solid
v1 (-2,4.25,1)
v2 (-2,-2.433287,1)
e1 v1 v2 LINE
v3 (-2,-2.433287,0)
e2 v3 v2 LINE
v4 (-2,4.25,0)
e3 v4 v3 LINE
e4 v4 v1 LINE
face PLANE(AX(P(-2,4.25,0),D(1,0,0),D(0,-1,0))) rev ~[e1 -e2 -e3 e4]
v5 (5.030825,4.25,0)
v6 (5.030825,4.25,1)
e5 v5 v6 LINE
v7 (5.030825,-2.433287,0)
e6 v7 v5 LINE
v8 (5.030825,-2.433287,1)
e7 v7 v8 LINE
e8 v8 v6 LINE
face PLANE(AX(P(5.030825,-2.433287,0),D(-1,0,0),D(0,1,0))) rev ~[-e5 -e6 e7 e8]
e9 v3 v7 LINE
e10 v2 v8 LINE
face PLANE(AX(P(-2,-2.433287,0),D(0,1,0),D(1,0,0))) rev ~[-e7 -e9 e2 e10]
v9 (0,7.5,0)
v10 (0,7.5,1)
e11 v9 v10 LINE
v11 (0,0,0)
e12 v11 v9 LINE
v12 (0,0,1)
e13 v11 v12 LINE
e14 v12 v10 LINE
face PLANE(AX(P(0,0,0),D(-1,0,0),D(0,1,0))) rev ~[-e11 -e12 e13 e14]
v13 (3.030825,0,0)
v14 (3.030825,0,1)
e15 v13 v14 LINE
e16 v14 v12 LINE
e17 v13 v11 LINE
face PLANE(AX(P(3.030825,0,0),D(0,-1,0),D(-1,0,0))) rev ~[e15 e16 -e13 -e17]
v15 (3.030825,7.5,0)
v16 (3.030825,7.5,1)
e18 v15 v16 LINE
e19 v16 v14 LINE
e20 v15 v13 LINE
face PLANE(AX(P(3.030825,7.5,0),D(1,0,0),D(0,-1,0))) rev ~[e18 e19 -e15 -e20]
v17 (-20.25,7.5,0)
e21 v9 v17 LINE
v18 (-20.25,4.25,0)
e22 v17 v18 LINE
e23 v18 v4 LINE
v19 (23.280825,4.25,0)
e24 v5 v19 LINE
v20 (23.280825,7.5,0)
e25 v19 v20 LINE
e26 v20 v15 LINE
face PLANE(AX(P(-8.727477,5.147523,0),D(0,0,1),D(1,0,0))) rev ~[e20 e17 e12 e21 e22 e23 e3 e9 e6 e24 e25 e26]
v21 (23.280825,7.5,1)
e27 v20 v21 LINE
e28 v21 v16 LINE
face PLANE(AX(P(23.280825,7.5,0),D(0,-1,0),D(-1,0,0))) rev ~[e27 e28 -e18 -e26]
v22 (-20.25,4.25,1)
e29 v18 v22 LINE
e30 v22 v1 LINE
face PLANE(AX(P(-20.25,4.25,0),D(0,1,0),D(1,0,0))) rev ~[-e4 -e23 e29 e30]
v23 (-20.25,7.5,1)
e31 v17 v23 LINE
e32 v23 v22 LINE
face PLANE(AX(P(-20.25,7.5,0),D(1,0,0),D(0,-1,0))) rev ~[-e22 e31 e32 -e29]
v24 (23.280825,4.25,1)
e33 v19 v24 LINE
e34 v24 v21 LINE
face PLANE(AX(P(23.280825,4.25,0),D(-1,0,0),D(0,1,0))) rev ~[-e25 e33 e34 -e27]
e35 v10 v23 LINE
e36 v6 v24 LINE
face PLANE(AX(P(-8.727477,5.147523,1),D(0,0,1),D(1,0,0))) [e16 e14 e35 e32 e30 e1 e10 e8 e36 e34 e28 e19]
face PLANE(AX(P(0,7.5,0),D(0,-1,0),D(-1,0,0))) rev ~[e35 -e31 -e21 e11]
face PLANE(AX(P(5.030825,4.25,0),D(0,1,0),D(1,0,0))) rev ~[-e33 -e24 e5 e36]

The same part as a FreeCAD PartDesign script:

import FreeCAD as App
import Part
import Sketcher
Q = App.Units.Quantity

doc = App.newDocument("Part")
params = doc.addObject("Spreadsheet::Sheet", "Params")
for row, (alias, value) in enumerate([
    ("sketch1_height", "7.5 mm"),
    ("sketch1_width", "20.25 mm"),
    ("sketch1_height2", "3.25 mm"),
    ("pad1_length", "1 mm"),
], start=1):
    params.set(f"A{row}", alias)
    params.set(f"B{row}", "=" + value)
    params.setAlias(f"B{row}", alias)

body = doc.addObject("PartDesign::Body", "Body")

# Sketch on XY plane
sketch1 = body.newObject("Sketcher::SketchObject", "Sketch")
sketch1.AttachmentSupport = (doc.getObject("XY_Plane"), [""])
sketch1.MapMode = "FlatFace"
sketch1.addGeometry([
    Part.LineSegment(App.Vector(0, 0, 0), App.Vector(0, 7.5, 0)),  # 0
    Part.LineSegment(App.Vector(0, 7.5, 0), App.Vector(-20.2, 7.5, 0)),  # 1
    Part.LineSegment(App.Vector(-20.2, 7.5, 0), App.Vector(-20.2, 4.2, 0)),  # 2
    Part.LineSegment(App.Vector(-20.2, 4.2, 0), App.Vector(-2, 4.2, 0)),  # 3
    Part.LineSegment(App.Vector(-2, 4.2, 0), App.Vector(-2, -2.4, 0)),  # 4
    Part.LineSegment(App.Vector(-2, -2.4, 0), App.Vector(5, -2.4, 0)),  # 5
    Part.LineSegment(App.Vector(5, -2.4, 0), App.Vector(5, 4.2, 0)),  # 6
    Part.LineSegment(App.Vector(5, 4.2, 0), App.Vector(23.3, 4.2, 0)),  # 7
    Part.LineSegment(App.Vector(23.3, 4.2, 0), App.Vector(23.3, 7.5, 0)),  # 8
    Part.LineSegment(App.Vector(23.3, 7.5, 0), App.Vector(3, 7.5, 0)),  # 9
    Part.LineSegment(App.Vector(3, 7.5, 0), App.Vector(3, 0, 0)),  # 10
    Part.LineSegment(App.Vector(3, 0, 0), App.Vector(0, 0, 0)),  # 11
], False)
sketch1.addConstraint([
    Sketcher.Constraint("Coincident", 0, 2, 1, 1),
    Sketcher.Constraint("Coincident", 1, 2, 2, 1),
    Sketcher.Constraint("Coincident", 2, 2, 3, 1),
    Sketcher.Constraint("Coincident", 3, 2, 4, 1),
    Sketcher.Constraint("Coincident", 4, 2, 5, 1),
    Sketcher.Constraint("Coincident", 5, 2, 6, 1),
    Sketcher.Constraint("Coincident", 6, 2, 7, 1),
    Sketcher.Constraint("Coincident", 7, 2, 8, 1),
    Sketcher.Constraint("Coincident", 8, 2, 9, 1),
    Sketcher.Constraint("Coincident", 9, 2, 10, 1),
    Sketcher.Constraint("Coincident", 10, 2, 11, 1),
    Sketcher.Constraint("Coincident", 11, 2, 0, 1),
    Sketcher.Constraint("Vertical", 0),
    Sketcher.Constraint("Horizontal", 1),
    Sketcher.Constraint("Vertical", 2),
    Sketcher.Constraint("Horizontal", 3),
    Sketcher.Constraint("Vertical", 4),
    Sketcher.Constraint("Horizontal", 5),
    Sketcher.Constraint("Vertical", 6),
    Sketcher.Constraint("Horizontal", 7),
    Sketcher.Constraint("Vertical", 8),
    Sketcher.Constraint("Horizontal", 9),
    Sketcher.Constraint("Vertical", 10),
    Sketcher.Constraint("Horizontal", 11),
    Sketcher.Constraint("Coincident", 11, 2, -1, 1),
    Sketcher.Constraint("Horizontal", 3, 2, 6, 2),
    Sketcher.Constraint("Horizontal", 1, 2, 8, 2),
    Sketcher.Constraint("Equal", 3, 7),
    Sketcher.Constraint("Equal", 1, 9),
    Sketcher.Constraint("DistanceY", 0, 1, 0, 2, Q("7.5 mm")),
    Sketcher.Constraint("DistanceX", 3, 2, -1, 1, Q("2 mm")),
    Sketcher.Constraint("DistanceX", 1, 2, 1, 1, Q("20.25 mm")),
    Sketcher.Constraint("DistanceY", 2, 2, 2, 1, Q("3.25 mm")),
    Sketcher.Constraint("DistanceX", 5, 1, 5, 2, Q("7.030825 mm")),
    Sketcher.Constraint("DistanceY", 4, 2, 4, 1, Q("6.683287 mm")),
])
sketch1.setExpression("Constraints[29]", "Params.sketch1_height")
sketch1.setExpression("Constraints[31]", "Params.sketch1_width")
sketch1.setExpression("Constraints[32]", "Params.sketch1_height2")
pad1 = body.newObject("PartDesign::Pad", "Pad")
pad1.Profile = sketch1
pad1.setExpression("Length", "Params.pad1_length")

doc.recompute()
